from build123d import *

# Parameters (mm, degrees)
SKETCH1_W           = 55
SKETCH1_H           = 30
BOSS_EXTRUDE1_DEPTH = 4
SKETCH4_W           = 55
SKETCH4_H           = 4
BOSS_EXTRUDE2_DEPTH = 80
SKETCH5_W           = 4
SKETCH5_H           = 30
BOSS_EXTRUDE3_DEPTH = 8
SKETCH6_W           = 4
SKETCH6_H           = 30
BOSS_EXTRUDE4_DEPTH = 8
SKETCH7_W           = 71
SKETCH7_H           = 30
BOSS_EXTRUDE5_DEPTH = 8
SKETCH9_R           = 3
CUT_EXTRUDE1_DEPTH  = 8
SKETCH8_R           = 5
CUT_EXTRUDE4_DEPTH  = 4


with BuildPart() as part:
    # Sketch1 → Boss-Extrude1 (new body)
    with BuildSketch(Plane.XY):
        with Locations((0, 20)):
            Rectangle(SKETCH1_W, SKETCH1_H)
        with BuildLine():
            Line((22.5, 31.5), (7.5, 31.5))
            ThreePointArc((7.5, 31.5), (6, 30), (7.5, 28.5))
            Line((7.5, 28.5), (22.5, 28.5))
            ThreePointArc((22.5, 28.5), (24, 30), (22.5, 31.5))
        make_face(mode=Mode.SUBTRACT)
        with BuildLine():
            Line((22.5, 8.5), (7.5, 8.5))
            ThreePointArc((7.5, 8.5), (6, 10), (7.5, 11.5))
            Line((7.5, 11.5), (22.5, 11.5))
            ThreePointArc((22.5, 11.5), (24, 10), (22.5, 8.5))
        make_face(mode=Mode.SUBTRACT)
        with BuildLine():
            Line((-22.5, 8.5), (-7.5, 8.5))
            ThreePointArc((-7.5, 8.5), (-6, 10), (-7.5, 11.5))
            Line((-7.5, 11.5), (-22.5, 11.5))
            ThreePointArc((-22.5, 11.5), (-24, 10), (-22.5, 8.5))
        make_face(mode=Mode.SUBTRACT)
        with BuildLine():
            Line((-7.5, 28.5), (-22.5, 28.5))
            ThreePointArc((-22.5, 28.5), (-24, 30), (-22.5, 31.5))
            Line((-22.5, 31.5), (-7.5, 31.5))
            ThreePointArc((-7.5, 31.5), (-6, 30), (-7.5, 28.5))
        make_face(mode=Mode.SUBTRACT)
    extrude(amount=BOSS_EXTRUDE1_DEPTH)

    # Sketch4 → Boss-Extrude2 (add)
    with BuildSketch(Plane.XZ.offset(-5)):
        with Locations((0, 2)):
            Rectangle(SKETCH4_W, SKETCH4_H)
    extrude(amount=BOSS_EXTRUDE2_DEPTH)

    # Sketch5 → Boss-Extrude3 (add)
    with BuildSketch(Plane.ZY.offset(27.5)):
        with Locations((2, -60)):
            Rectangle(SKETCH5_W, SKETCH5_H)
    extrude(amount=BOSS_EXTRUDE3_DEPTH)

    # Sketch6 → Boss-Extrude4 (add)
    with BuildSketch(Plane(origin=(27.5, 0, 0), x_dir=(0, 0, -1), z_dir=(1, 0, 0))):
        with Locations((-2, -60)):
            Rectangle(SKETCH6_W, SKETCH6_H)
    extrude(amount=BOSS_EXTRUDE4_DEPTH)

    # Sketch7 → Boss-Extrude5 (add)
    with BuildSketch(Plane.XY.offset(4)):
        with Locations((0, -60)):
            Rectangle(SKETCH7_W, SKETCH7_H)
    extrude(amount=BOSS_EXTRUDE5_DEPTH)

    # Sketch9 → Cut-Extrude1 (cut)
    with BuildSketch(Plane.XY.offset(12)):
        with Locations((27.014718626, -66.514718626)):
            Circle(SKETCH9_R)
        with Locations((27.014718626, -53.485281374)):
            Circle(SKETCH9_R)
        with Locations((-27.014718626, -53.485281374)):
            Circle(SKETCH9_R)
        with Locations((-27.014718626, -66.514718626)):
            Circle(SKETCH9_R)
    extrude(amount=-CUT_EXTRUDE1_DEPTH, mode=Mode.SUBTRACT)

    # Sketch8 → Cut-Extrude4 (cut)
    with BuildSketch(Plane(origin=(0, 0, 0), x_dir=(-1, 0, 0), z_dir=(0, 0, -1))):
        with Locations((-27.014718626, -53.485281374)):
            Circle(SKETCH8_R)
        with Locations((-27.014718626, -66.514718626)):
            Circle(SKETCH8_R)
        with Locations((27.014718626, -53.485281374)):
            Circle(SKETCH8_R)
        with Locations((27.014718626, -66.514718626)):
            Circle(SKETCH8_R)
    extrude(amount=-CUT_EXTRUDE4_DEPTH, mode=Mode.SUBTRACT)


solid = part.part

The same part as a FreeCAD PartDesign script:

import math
import FreeCAD as App
import Part
import Sketcher

V = App.Vector
Q = App.Units.Quantity


def add_polygon(sketch, points):
    """Adds a closed chain of lines whose ends are joined by coincident constraints."""
    first, n = sketch.GeometryCount, len(points)
    for a, b in zip(points, points[1:] + points[:1]):
        sketch.addGeometry(Part.LineSegment(App.Vector(*a, 0), App.Vector(*b, 0)), False)
    for i in range(n):
        sketch.addConstraint(Sketcher.Constraint("Coincident", first + i, 2, first + (i + 1) % n, 1))

doc = App.newDocument("Part")
body = doc.addObject("PartDesign::Body", "Body")

# Sketch on XY plane
sketch1 = body.newObject("Sketcher::SketchObject", "Sketch")
sketch1.AttachmentSupport = (doc.getObject("XY_Plane"), [""])
sketch1.MapMode = "FlatFace"
add_polygon(sketch1, [(-27.5, 35), (-27.5, 5), (27.5, 5), (27.5, 35)])  # lines 0-3
sketch1.addGeometry(Part.LineSegment(V(-7.5, 8.5, 0), V(-22.5, 8.5, 0)), False)  # 4
sketch1.addGeometry(Part.ArcOfCircle(Part.Circle(V(-22.5, 10, 0), V(0, 0, 1), 1.5), math.radians(90), math.radians(270)), False)  # 5
sketch1.addGeometry(Part.LineSegment(V(-22.5, 11.5, 0), V(-7.5, 11.5, 0)), False)  # 6
sketch1.addGeometry(Part.ArcOfCircle(Part.Circle(V(-7.5, 10, 0), V(0, 0, 1), 1.5), math.radians(-90), math.radians(90)), False)  # 7
sketch1.addGeometry(Part.ArcOfCircle(Part.Circle(V(22.5, 10, 0), V(0, 0, 1), 1.5), math.radians(-90), math.radians(90)), False)  # 8
sketch1.addGeometry(Part.LineSegment(V(22.5, 8.5, 0), V(7.5, 8.5, 0)), False)  # 9
sketch1.addGeometry(Part.ArcOfCircle(Part.Circle(V(7.5, 10, 0), V(0, 0, 1), 1.5), math.radians(90), math.radians(270)), False)  # 10
sketch1.addGeometry(Part.LineSegment(V(7.5, 11.5, 0), V(22.5, 11.5, 0)), False)  # 11
sketch1.addGeometry(Part.ArcOfCircle(Part.Circle(V(-7.5, 30, 0), V(0, 0, 1), 1.5), math.radians(-90), math.radians(90)), False)  # 12
sketch1.addGeometry(Part.LineSegment(V(-7.5, 28.5, 0), V(-22.5, 28.5, 0)), False)  # 13
sketch1.addGeometry(Part.ArcOfCircle(Part.Circle(V(-22.5, 30, 0), V(0, 0, 1), 1.5), math.radians(90), math.radians(270)), False)  # 14
sketch1.addGeometry(Part.LineSegment(V(-22.5, 31.5, 0), V(-7.5, 31.5, 0)), False)  # 15
sketch1.addGeometry(Part.LineSegment(V(7.5, 31.5, 0), V(22.5, 31.5, 0)), False)  # 16
sketch1.addGeometry(Part.ArcOfCircle(Part.Circle(V(22.5, 30, 0), V(0, 0, 1), 1.5), math.radians(-90), math.radians(90)), False)  # 17
sketch1.addGeometry(Part.LineSegment(V(22.5, 28.5, 0), V(7.5, 28.5, 0)), False)  # 18
sketch1.addGeometry(Part.ArcOfCircle(Part.Circle(V(7.5, 30, 0), V(0, 0, 1), 1.5), math.radians(90), math.radians(270)), False)  # 19
sketch1.addConstraint(Sketcher.Constraint("Tangent", 4, 2, 5, 2))
sketch1.addConstraint(Sketcher.Constraint("Tangent", 5, 1, 6, 1))
sketch1.addConstraint(Sketcher.Constraint("Tangent", 6, 2, 7, 2))
sketch1.addConstraint(Sketcher.Constraint("Tangent", 7, 1, 4, 1))
sketch1.addConstraint(Sketcher.Constraint("Tangent", 8, 1, 9, 1))
sketch1.addConstraint(Sketcher.Constraint("Tangent", 9, 2, 10, 2))
sketch1.addConstraint(Sketcher.Constraint("Tangent", 10, 1, 11, 1))
sketch1.addConstraint(Sketcher.Constraint("Tangent", 11, 2, 8, 2))
sketch1.addConstraint(Sketcher.Constraint("Tangent", 12, 1, 13, 1))
sketch1.addConstraint(Sketcher.Constraint("Tangent", 13, 2, 14, 2))
sketch1.addConstraint(Sketcher.Constraint("Tangent", 14, 1, 15, 1))
sketch1.addConstraint(Sketcher.Constraint("Tangent", 15, 2, 12, 2))
sketch1.addConstraint(Sketcher.Constraint("Tangent", 16, 2, 17, 2))
sketch1.addConstraint(Sketcher.Constraint("Tangent", 17, 1, 18, 1))
sketch1.addConstraint(Sketcher.Constraint("Tangent", 18, 2, 19, 2))
sketch1.addConstraint(Sketcher.Constraint("Tangent", 19, 1, 16, 1))
sketch1.addConstraint(Sketcher.Constraint("Vertical", 0))
sketch1.addConstraint(Sketcher.Constraint("Horizontal", 1))
sketch1.addConstraint(Sketcher.Constraint("Vertical", 2))
sketch1.addConstraint(Sketcher.Constraint("Horizontal", 3))
sketch1.addConstraint(Sketcher.Constraint("Horizontal", 4))
sketch1.addConstraint(Sketcher.Constraint("Horizontal", 6))
sketch1.addConstraint(Sketcher.Constraint("Horizontal", 9))
sketch1.addConstraint(Sketcher.Constraint("Horizontal", 11))
sketch1.addConstraint(Sketcher.Constraint("Horizontal", 13))
sketch1.addConstraint(Sketcher.Constraint("Horizontal", 15))
sketch1.addConstraint(Sketcher.Constraint("Horizontal", 16))
sketch1.addConstraint(Sketcher.Constraint("Horizontal", 18))
sketch1.addConstraint(Sketcher.Constraint("Equal", 7, 8))
sketch1.addConstraint(Sketcher.Constraint("Equal", 10, 12))
sketch1.addConstraint(Sketcher.Constraint("Equal", 14, 17))
sketch1.addConstraint(Sketcher.Constraint("Symmetric", 5, 3, 8, 3, -2))
sketch1.addConstraint(Sketcher.Constraint("Symmetric", 14, 3, 17, 3, -2))
sketch1.addConstraint(Sketcher.Constraint("Vertical", 7, 3, 12, 3))
sketch1.addConstraint(Sketcher.Constraint("Vertical", 5, 3, 14, 3))
sketch1.addConstraint(Sketcher.Constraint("Vertical", 10, 3, 19, 3))
sketch1.addConstraint(Sketcher.Constraint("Equal", 6, 9))
sketch1.addConstraint(Sketcher.Constraint("Radius", 5, Q("1.5 mm")))
sketch1.addConstraint(Sketcher.Constraint("DistanceX", 1, 1, 1, 2, Q("55 mm")))
sketch1.addConstraint(Sketcher.Constraint("DistanceX", 4, 2, 4, 1, Q("15 mm")))
sketch1.addConstraint(Sketcher.Constraint("DistanceY", 0, 2, 0, 1, Q("30 mm")))
sketch1.addConstraint(Sketcher.Constraint("DistanceY", -1, 1, 5, 3, Q("10 mm")))
sketch1.addConstraint(Sketcher.Constraint("DistanceY", -1, 1, 12, 3, Q("30 mm")))
sketch1.addConstraint(Sketcher.Constraint("DistanceY", -1, 1, 0, 2, Q("5 mm")))
sketch1.addConstraint(Sketcher.Constraint("DistanceX", 7, 3, 8, 3, Q("30 mm")))
sketch1.addConstraint(Sketcher.Constraint("DistanceX", 0, 2, 5, 3, Q("5 mm")))
pad1 = body.newObject("PartDesign::Pad", "Pad")
pad1.Profile = sketch1
pad1.Length = 4

# Sketch on XZ plane
sketch2 = body.newObject("Sketcher::SketchObject", "Sketch001")
sketch2.AttachmentSupport = (doc.getObject("XZ_Plane"), [""])
sketch2.MapMode = "FlatFace"
sketch2.AttachmentOffset = App.Placement(V(0, 0, -5), App.Rotation())
add_polygon(sketch2, [(-27.5, 4), (-27.5, 0), (27.5, 0), (27.5, 4)])  # lines 0-3
sketch2.addConstraint(Sketcher.Constraint("Vertical", 0))
sketch2.addConstraint(Sketcher.Constraint("Horizontal", 1))
sketch2.addConstraint(Sketcher.Constraint("Vertical", 2))
sketch2.addConstraint(Sketcher.Constraint("Horizontal", 3))
sketch2.addConstraint(Sketcher.Constraint("Symmetric", 0, 2, 1, 2, -1, 1))
sketch2.addConstraint(Sketcher.Constraint("DistanceX", 1, 1, 1, 2, Q("55 mm")))
sketch2.addConstraint(Sketcher.Constraint("DistanceY", 0, 2, 0, 1, Q("4 mm")))
pad2 = body.newObject("PartDesign::Pad", "Pad001")
pad2.Profile = sketch2
pad2.Length = 80

# Sketch on YZ plane
sketch3 = body.newObject("Sketcher::SketchObject", "Sketch002")
sketch3.AttachmentSupport = (doc.getObject("YZ_Plane"), [""])
sketch3.MapMode = "FlatFace"
sketch3.AttachmentOffset = App.Placement(V(0, 0, -27.5), App.Rotation())
add_polygon(sketch3, [(-45, 0), (-75, 0), (-75, 4), (-45, 4)])  # lines 0-3
sketch3.addConstraint(Sketcher.Constraint("Horizontal", 0))
sketch3.addConstraint(Sketcher.Constraint("Vertical", 1))
sketch3.addConstraint(Sketcher.Constraint("Horizontal", 2))
sketch3.addConstraint(Sketcher.Constraint("Vertical", 3))
sketch3.addConstraint(Sketcher.Constraint("PointOnObject", 0, 2, -1))
sketch3.addConstraint(Sketcher.Constraint("DistanceX", 0, 2, 0, 1, Q("30 mm")))
sketch3.addConstraint(Sketcher.Constraint("DistanceY", 1, 1, 1, 2, Q("4 mm")))
sketch3.addConstraint(Sketcher.Constraint("DistanceX", 0, 2, -1, 1, Q("75 mm")))
pad3 = body.newObject("PartDesign::Pad", "Pad002")
pad3.Profile = sketch3
pad3.Length = 8
pad3.Reversed = True

# Sketch on YZ plane
sketch4 = body.newObject("Sketcher::SketchObject", "Sketch003")
sketch4.AttachmentSupport = (doc.getObject("YZ_Plane"), [""])
sketch4.MapMode = "FlatFace"
sketch4.AttachmentOffset = App.Placement(V(0, 0, 27.5), App.Rotation())
add_polygon(sketch4, [(-45, 4), (-75, 4), (-75, 0), (-45, 0)])  # lines 0-3
sketch4.addConstraint(Sketcher.Constraint("Horizontal", 0))
sketch4.addConstraint(Sketcher.Constraint("Vertical", 1))
sketch4.addConstraint(Sketcher.Constraint("Horizontal", 2))
sketch4.addConstraint(Sketcher.Constraint("Vertical", 3))
sketch4.addConstraint(Sketcher.Constraint("PointOnObject", 1, 2, -1))
sketch4.addConstraint(Sketcher.Constraint("DistanceX", 0, 2, 0, 1, Q("30 mm")))
sketch4.addConstraint(Sketcher.Constraint("DistanceY", 1, 2, 1, 1, Q("4 mm")))
sketch4.addConstraint(Sketcher.Constraint("DistanceX", 0, 2, -1, 1, Q("75 mm")))
pad4 = body.newObject("PartDesign::Pad", "Pad003")
pad4.Profile = sketch4
pad4.Length = 8

# Sketch on XY plane
sketch5 = body.newObject("Sketcher::SketchObject", "Sketch004")
sketch5.AttachmentSupport = (doc.getObject("XY_Plane"), [""])
sketch5.MapMode = "FlatFace"
sketch5.AttachmentOffset = App.Placement(V(0, 0, 4), App.Rotation())
add_polygon(sketch5, [(-35.5, -45), (-35.5, -75), (35.5, -75), (35.5, -45)])  # lines 0-3
sketch5.addConstraint(Sketcher.Constraint("Vertical", 0))
sketch5.addConstraint(Sketcher.Constraint("Horizontal", 1))
sketch5.addConstraint(Sketcher.Constraint("Vertical", 2))
sketch5.addConstraint(Sketcher.Constraint("Horizontal", 3))
sketch5.addConstraint(Sketcher.Constraint("DistanceX", 1, 1, 1, 2, Q("71 mm")))
sketch5.addConstraint(Sketcher.Constraint("DistanceY", 0, 2, 0, 1, Q("30 mm")))
sketch5.addConstraint(Sketcher.Constraint("DistanceY", 0, 2, -1, 1, Q("75 mm")))
sketch5.addConstraint(Sketcher.Constraint("DistanceX", 0, 2, -1, 1, Q("35.5 mm")))
pad5 = body.newObject("PartDesign::Pad", "Pad004")
pad5.Profile = sketch5
pad5.Length = 8

# Sketch on XY plane
sketch6 = body.newObject("Sketcher::SketchObject", "Sketch005")
sketch6.AttachmentSupport = (doc.getObject("XY_Plane"), [""])
sketch6.MapMode = "FlatFace"
sketch6.AttachmentOffset = App.Placement(V(0, 0, 12), App.Rotation())
sketch6.addGeometry(Part.Circle(V(27.014719, -66.514719, 0), V(0, 0, 1), 3), False)
sketch6.addGeometry(Part.Circle(V(27.014719, -53.485281, 0), V(0, 0, 1), 3), False)
sketch6.addGeometry(Part.Circle(V(-27.014719, -53.485281, 0), V(0, 0, 1), 3), False)
sketch6.addGeometry(Part.Circle(V(-27.014719, -66.514719, 0), V(0, 0, 1), 3), False)
sketch6.addConstraint(Sketcher.Constraint("Equal", 0, 1))
sketch6.addConstraint(Sketcher.Constraint("Equal", 1, 2))
sketch6.addConstraint(Sketcher.Constraint("Equal", 2, 3))
sketch6.addConstraint(Sketcher.Constraint("Symmetric", 1, 3, 2, 3, -2))
sketch6.addConstraint(Sketcher.Constraint("Symmetric", 0, 3, 3, 3, -2))
sketch6.addConstraint(Sketcher.Constraint("Vertical", 0, 3, 1, 3))
sketch6.addConstraint(Sketcher.Constraint("Diameter", 0, Q("6 mm")))
sketch6.addConstraint(Sketcher.Constraint("DistanceX", -1, 1, 0, 3, Q("27.014719 mm")))
sketch6.addConstraint(Sketcher.Constraint("DistanceY", 0, 3, -1, 1, Q("66.514719 mm")))
sketch6.addConstraint(Sketcher.Constraint("DistanceY", 1, 3, -1, 1, Q("53.485281 mm")))
pocket1 = body.newObject("PartDesign::Pocket", "Pocket")
pocket1.Profile = sketch6
pocket1.Length = 8

# Sketch on XY plane
sketch7 = body.newObject("Sketcher::SketchObject", "Sketch006")
sketch7.AttachmentSupport = (doc.getObject("XY_Plane"), [""])
sketch7.MapMode = "FlatFace"
sketch7.addGeometry(Part.Circle(V(27.014719, -53.485281, 0), V(0, 0, 1), 5), False)
sketch7.addGeometry(Part.Circle(V(27.014719, -66.514719, 0), V(0, 0, 1), 5), False)
sketch7.addGeometry(Part.Circle(V(-27.014719, -53.485281, 0), V(0, 0, 1), 5), False)
sketch7.addGeometry(Part.Circle(V(-27.014719, -66.514719, 0), V(0, 0, 1), 5), False)
sketch7.addConstraint(Sketcher.Constraint("Equal", 0, 1))
sketch7.addConstraint(Sketcher.Constraint("Equal", 1, 2))
sketch7.addConstraint(Sketcher.Constraint("Equal", 2, 3))
sketch7.addConstraint(Sketcher.Constraint("Symmetric", 0, 3, 2, 3, -2))
sketch7.addConstraint(Sketcher.Constraint("Symmetric", 1, 3, 3, 3, -2))
sketch7.addConstraint(Sketcher.Constraint("Vertical", 0, 3, 1, 3))
sketch7.addConstraint(Sketcher.Constraint("Diameter", 0, Q("10 mm")))
sketch7.addConstraint(Sketcher.Constraint("DistanceX", -1, 1, 0, 3, Q("27.014719 mm")))
sketch7.addConstraint(Sketcher.Constraint("DistanceY", 0, 3, -1, 1, Q("53.485281 mm")))
sketch7.addConstraint(Sketcher.Constraint("DistanceY", 1, 3, -1, 1, Q("66.514719 mm")))
pocket2 = body.newObject("PartDesign::Pocket", "Pocket001")
pocket2.Profile = sketch7
pocket2.Length = 4
pocket2.Reversed = True

doc.recompute()
